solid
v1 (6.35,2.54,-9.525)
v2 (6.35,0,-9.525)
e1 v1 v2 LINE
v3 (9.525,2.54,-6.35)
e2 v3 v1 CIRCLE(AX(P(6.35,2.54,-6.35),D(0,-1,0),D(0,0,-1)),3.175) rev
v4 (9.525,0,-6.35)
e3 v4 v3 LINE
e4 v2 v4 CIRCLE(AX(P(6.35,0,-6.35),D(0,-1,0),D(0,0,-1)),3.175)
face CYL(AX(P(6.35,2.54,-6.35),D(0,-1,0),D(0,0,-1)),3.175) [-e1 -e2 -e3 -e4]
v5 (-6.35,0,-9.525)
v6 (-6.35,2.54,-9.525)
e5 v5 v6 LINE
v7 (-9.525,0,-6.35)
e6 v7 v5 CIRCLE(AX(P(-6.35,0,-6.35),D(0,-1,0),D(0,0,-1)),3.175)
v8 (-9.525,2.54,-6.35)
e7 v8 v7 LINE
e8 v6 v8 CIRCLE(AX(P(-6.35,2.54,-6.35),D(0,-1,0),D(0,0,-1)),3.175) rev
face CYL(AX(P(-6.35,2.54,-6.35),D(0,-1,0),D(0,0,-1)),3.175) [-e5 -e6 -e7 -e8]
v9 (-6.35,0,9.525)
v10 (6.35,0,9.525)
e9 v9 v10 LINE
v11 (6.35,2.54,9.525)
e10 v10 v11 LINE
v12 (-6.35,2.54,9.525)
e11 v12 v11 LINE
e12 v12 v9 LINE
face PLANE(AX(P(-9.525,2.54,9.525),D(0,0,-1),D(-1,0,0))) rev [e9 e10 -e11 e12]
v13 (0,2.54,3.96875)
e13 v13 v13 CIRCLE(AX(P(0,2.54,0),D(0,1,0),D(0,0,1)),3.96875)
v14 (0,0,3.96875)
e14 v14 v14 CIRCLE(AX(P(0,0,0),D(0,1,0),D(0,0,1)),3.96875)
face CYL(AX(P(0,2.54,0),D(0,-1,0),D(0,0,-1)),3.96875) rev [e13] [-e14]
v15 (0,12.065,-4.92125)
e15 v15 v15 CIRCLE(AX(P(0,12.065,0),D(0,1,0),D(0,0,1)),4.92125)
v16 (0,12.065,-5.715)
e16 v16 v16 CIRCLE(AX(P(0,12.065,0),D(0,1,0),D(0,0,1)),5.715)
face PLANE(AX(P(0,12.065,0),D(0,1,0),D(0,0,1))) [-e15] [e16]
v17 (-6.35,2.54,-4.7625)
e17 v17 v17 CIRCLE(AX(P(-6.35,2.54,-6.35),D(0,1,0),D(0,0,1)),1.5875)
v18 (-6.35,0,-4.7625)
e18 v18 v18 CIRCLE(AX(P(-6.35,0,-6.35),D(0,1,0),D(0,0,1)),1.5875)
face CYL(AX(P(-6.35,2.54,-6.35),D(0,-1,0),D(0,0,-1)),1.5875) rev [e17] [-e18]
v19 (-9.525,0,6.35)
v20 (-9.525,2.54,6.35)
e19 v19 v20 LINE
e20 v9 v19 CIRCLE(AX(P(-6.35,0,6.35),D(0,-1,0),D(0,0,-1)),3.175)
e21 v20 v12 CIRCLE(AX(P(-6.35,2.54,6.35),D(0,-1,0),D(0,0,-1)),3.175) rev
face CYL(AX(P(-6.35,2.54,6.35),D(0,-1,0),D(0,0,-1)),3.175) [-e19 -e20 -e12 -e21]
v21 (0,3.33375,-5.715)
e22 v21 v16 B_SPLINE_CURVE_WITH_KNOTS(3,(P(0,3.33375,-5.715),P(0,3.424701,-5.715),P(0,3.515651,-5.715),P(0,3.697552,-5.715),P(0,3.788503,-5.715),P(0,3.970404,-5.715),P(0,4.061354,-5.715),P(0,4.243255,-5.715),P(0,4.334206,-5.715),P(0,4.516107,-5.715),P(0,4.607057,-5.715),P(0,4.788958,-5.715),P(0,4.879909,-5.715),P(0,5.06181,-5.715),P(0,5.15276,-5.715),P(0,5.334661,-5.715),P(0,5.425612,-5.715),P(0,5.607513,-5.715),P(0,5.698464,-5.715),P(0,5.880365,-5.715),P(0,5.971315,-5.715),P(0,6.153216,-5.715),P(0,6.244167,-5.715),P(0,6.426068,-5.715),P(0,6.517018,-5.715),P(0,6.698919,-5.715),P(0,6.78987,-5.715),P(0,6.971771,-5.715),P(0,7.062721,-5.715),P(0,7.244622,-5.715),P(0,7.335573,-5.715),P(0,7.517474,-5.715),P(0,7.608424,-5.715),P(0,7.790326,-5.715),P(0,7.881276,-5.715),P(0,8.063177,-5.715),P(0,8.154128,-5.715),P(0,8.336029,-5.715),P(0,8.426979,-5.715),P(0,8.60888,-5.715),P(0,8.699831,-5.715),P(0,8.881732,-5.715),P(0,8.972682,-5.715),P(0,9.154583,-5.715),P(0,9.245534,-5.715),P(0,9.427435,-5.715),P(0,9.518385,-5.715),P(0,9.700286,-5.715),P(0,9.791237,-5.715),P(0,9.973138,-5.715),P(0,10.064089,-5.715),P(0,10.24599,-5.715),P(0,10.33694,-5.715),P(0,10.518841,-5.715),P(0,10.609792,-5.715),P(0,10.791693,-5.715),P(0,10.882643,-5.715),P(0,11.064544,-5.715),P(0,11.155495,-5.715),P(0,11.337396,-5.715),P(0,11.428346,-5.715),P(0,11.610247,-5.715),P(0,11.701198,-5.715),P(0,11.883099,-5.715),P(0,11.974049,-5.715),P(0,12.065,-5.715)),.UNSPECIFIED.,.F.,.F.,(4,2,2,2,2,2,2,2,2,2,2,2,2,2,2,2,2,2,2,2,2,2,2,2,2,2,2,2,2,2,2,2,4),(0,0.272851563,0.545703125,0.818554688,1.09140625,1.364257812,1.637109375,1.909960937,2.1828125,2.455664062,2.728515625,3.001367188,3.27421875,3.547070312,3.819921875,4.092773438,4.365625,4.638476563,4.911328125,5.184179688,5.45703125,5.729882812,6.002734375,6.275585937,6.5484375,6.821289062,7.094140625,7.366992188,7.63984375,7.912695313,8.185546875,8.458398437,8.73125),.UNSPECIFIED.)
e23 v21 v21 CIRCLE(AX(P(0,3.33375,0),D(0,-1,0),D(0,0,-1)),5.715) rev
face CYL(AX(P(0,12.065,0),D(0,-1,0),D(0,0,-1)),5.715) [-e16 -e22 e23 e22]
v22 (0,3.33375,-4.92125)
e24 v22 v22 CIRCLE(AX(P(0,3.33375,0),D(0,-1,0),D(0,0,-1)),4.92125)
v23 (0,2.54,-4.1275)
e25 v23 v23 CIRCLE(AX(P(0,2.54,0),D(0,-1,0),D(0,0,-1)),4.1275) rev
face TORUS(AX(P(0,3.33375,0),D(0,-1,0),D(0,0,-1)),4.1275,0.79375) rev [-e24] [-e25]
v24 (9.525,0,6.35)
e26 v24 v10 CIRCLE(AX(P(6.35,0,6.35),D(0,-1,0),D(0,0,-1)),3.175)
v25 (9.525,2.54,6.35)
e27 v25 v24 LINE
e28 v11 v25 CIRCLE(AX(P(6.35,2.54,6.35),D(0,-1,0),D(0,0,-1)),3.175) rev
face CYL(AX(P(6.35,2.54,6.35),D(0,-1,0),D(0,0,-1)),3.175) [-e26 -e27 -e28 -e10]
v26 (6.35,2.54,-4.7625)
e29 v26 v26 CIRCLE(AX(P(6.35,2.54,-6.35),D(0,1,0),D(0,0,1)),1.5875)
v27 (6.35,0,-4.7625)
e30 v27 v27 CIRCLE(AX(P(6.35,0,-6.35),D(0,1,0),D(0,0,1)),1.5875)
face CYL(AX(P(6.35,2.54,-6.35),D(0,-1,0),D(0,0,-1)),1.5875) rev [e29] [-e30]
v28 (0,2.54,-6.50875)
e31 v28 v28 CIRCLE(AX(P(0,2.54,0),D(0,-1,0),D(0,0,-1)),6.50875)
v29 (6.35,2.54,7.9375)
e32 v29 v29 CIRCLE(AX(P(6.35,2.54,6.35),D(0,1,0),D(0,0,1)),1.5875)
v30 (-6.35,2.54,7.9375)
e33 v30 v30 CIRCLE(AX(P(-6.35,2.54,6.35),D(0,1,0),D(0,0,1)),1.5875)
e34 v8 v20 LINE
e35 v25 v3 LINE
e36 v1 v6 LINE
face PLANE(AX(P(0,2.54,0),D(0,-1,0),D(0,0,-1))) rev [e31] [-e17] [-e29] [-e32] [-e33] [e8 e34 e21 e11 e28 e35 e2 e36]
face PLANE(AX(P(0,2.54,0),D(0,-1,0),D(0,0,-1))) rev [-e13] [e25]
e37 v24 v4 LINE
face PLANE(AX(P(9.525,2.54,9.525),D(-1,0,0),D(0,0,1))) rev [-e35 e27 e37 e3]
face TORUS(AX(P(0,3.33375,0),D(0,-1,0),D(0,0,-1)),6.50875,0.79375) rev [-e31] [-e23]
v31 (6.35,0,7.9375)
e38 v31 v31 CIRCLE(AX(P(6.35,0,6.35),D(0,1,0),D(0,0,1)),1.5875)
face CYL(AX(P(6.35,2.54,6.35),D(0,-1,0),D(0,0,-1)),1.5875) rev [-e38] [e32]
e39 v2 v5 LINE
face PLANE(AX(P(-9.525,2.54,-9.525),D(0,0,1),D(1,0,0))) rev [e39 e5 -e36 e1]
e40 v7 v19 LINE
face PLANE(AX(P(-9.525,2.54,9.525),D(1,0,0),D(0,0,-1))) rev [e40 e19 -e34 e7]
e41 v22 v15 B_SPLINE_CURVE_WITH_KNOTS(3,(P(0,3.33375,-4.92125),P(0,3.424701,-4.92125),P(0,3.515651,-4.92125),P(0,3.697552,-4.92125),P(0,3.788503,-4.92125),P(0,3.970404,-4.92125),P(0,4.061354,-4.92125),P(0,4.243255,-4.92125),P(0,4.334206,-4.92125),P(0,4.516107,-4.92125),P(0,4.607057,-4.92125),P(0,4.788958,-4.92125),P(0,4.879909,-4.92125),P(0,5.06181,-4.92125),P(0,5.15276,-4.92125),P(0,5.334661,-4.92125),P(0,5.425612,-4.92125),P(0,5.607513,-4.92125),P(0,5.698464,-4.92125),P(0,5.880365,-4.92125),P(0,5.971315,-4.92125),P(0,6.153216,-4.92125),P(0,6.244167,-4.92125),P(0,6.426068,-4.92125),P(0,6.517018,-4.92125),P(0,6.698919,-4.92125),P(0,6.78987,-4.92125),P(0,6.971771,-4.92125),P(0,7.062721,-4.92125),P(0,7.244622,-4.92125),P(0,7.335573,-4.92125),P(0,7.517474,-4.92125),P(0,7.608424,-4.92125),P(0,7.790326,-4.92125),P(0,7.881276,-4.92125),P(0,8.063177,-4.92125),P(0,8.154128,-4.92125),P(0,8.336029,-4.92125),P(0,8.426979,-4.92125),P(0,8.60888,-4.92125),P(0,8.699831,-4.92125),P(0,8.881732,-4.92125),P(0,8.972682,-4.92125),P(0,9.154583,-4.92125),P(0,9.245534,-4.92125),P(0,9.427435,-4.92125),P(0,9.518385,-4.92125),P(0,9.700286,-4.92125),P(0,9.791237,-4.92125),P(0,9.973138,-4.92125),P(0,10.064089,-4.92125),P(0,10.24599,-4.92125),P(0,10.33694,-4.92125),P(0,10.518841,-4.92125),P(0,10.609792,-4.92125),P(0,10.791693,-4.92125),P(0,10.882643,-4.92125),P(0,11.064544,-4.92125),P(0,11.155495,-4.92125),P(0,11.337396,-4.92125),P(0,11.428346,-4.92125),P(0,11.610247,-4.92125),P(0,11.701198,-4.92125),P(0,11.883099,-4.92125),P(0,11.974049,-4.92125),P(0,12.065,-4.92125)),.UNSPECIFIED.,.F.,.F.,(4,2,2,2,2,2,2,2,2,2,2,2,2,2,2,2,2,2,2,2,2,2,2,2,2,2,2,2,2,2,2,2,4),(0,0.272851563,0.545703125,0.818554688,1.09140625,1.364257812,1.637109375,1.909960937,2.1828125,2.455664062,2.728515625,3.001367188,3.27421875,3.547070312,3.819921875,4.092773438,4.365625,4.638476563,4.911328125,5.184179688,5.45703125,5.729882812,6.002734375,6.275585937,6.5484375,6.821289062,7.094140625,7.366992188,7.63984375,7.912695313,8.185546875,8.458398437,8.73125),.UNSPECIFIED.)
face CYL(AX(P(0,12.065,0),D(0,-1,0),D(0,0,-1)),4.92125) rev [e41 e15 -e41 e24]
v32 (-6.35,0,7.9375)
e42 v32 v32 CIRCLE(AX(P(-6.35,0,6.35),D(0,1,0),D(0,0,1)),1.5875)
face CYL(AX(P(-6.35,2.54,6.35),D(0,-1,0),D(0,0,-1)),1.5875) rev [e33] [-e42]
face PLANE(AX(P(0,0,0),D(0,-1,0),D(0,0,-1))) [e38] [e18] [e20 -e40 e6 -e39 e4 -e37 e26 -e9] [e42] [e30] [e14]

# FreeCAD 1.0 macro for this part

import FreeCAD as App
import Part
import Sketcher
from FreeCAD import Vector
Q = App.Units.Quantity


def edges_at(feature, points):
    """Names of the edges that pass closest to the given points."""
    edges = feature.Shape.Edges
    near = lambda p: min(range(len(edges)), key=lambda i: edges[i].distToShape(Part.Vertex(*p))[0])
    return sorted({f"Edge{near(p) + 1}" for p in points})

doc = App.newDocument("Part")
body = doc.addObject("PartDesign::Body", "Body")

sketch1 = body.newObject("Sketcher::SketchObject", "Sketch")
sketch1.AttachmentSupport = (doc.getObject("XZ_Plane"), [""])
sketch1.MapMode = "FlatFace"
sketch1.addGeometry(Part.LineSegment(Vector(-9.5, -9.5, 0), Vector(-9.5, 9.5, 0)), False)
sketch1.addGeometry(Part.LineSegment(Vector(-9.5, 9.5, 0), Vector(9.5, 9.5, 0)), False)
sketch1.addGeometry(Part.LineSegment(Vector(9.5, 9.5, 0), Vector(9.5, -9.5, 0)), False)
sketch1.addGeometry(Part.LineSegment(Vector(9.5, -9.5, 0), Vector(-9.5, -9.5, 0)), False)
sketch1.addGeometry(Part.Circle(Vector(-6.3, 6.3, 0), Vector(0, 0, 1), 1.6), False)
sketch1.addGeometry(Part.Circle(Vector(6.3, 6.3, 0), Vector(0, 0, 1), 1.6), False)
sketch1.addGeometry(Part.Circle(Vector(-6.3, -6.3, 0), Vector(0, 0, 1), 1.6), False)
sketch1.addGeometry(Part.Circle(Vector(0, 0, 0), Vector(0, 0, 1), 4), False)
sketch1.addGeometry(Part.Circle(Vector(6.3, -6.3, 0), Vector(0, 0, 1), 1.6), False)
sketch1.addConstraint(Sketcher.Constraint("Coincident", 0, 2, 1, 1))
sketch1.addConstraint(Sketcher.Constraint("Coincident", 1, 2, 2, 1))
sketch1.addConstraint(Sketcher.Constraint("Coincident", 2, 2, 3, 1))
sketch1.addConstraint(Sketcher.Constraint("Coincident", 3, 2, 0, 1))
sketch1.addConstraint(Sketcher.Constraint("Vertical", 0))
sketch1.addConstraint(Sketcher.Constraint("Horizontal", 1))
sketch1.addConstraint(Sketcher.Constraint("Vertical", 2))
sketch1.addConstraint(Sketcher.Constraint("Horizontal", 3))
sketch1.addConstraint(Sketcher.Constraint("Coincident", 7, 3, -1, 1))
sketch1.addConstraint(Sketcher.Constraint("Equal", 4, 5))
sketch1.addConstraint(Sketcher.Constraint("Equal", 5, 6))
sketch1.addConstraint(Sketcher.Constraint("Equal", 6, 8))
sketch1.addConstraint(Sketcher.Constraint("Symmetric", 5, 3, 6, 3, -1, 1))
sketch1.addConstraint(Sketcher.Constraint("Symmetric", 4, 3, 8, 3, -1, 1))
sketch1.addConstraint(Sketcher.Constraint("Symmetric", 0, 2, 2, 2, -1, 1))
sketch1.addConstraint(Sketcher.Constraint("Symmetric", 4, 3, 5, 3, -2))
sketch1.addConstraint(Sketcher.Constraint("Equal", 3, 0))
sketch1.addConstraint(Sketcher.Constraint("Diameter", 4, Q("0.125 in")))
sketch1.addConstraint(Sketcher.Constraint("Diameter", 7, Q("0.3125 in")))
sketch1.addConstraint(Sketcher.Constraint("DistanceX", 1, 1, 1, 2, Q("0.75 in")))
sketch1.addConstraint(Sketcher.Constraint("DistanceX", 4, 3, 5, 3, Q("0.5 in")))
sketch1.addConstraint(Sketcher.Constraint("DistanceY", 6, 3, 4, 3, Q("0.5 in")))
pad1 = body.newObject("PartDesign::Pad", "Pad")
pad1.Profile = sketch1
pad1.Length = Q("0.1 in")
pad1.Reversed = True

sketch2 = body.newObject("Sketcher::SketchObject", "Sketch001")
sketch2.AttachmentSupport = (doc.getObject("XZ_Plane"), [""])
sketch2.MapMode = "FlatFace"
sketch2.AttachmentOffset = App.Placement(Vector(0, 0, -0.1 * 25.4), App.Rotation())
sketch2.addGeometry(Part.Circle(Vector(0, 0, 0), Vector(0, 0, 1), 5.7), False)
sketch2.addGeometry(Part.Circle(Vector(0, 0, 0), Vector(0, 0, 1), 4.9), False)
sketch2.addConstraint(Sketcher.Constraint("Coincident", 0, 3, -1, 1))
sketch2.addConstraint(Sketcher.Constraint("Coincident", 1, 3, -1, 1))
sketch2.addConstraint(Sketcher.Constraint("Diameter", 0, Q("0.45 in")))
sketch2.addConstraint(Sketcher.Constraint("Diameter", 1, Q("0.3875 in")))
pad2 = body.newObject("PartDesign::Pad", "Pad001")
pad2.Profile = sketch2
pad2.Length = Q("0.375 in")
pad2.Reversed = True
doc.recompute()

fillet = body.newObject("PartDesign::Fillet", "Fillet")
fillet.Base = (pad2, edges_at(pad2, [(0, 2.54, 5.715), (0, 2.54, 4.921)]))
fillet.Radius = Q("0.03125 in")
doc.recompute()

fillet2 = body.newObject("PartDesign::Fillet", "Fillet001")
fillet2.Base = (fillet, edges_at(fillet, [
    (9.525, 1.27, 9.525),
    (-9.525, 1.27, 9.525),
    (-9.525, 1.27, -9.525),
    (9.525, 1.27, -9.525),
]))
fillet2.Radius = Q("0.125 in")

doc.recompute()
